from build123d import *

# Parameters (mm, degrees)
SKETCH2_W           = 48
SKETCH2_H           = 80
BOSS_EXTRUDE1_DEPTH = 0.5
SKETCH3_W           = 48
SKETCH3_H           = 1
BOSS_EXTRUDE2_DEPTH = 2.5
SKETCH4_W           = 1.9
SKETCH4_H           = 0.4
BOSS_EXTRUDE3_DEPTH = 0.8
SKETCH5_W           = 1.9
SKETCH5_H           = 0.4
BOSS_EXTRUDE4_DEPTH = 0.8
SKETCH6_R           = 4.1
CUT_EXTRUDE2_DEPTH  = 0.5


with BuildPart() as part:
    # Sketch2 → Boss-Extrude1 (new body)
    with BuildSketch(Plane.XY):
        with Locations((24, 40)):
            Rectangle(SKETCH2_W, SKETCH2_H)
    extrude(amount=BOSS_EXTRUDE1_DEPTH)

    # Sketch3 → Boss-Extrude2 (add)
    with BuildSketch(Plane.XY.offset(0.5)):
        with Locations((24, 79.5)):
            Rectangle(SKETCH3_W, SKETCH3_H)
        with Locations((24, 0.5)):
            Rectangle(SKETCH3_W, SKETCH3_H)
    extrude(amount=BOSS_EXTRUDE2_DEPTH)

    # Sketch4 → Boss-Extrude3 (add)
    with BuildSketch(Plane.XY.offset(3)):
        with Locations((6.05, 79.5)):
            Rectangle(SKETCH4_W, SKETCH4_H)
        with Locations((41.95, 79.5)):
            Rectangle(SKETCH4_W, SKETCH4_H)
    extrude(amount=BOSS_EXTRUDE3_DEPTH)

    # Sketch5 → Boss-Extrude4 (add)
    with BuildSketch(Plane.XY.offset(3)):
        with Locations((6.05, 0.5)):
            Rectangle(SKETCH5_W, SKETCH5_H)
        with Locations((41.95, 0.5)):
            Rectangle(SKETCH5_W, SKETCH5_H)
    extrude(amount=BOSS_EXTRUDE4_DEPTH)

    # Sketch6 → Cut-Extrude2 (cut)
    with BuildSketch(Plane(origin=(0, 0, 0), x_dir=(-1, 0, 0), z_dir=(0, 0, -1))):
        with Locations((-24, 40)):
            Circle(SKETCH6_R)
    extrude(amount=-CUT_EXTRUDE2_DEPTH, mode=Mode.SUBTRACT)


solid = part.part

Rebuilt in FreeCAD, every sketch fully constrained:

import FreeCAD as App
import Part
import Sketcher
from FreeCAD import Vector
Q = App.Units.Quantity

doc = App.newDocument("Part")
params = doc.addObject("Spreadsheet::Sheet", "Params")
for row, (alias, value) in enumerate([
    ("sketch1_width", "48 mm"),
    ("sketch1_height", "80 mm"),
    ("pad1_length", "0.5 mm"),
    ("sketch2_width", "48 mm"),
    ("sketch2_height", "1 mm"),
    ("pad2_length", "2.5 mm"),
    ("sketch3_width", "1.9 mm"),
    ("sketch3_height", "0.4 mm"),
    ("pad3_length", "0.8 mm"),
    ("sketch4_width", "1.9 mm"),
    ("sketch4_height", "0.4 mm"),
    ("pad4_length", "0.8 mm"),
    ("sketch5_diameter", "8.2 mm"),
    ("pocket1_length", "0.5 mm"),
], start=1):
    params.set(f"A{row}", alias)
    params.set(f"B{row}", "=" + value)
    params.setAlias(f"B{row}", alias)

body = doc.addObject("PartDesign::Body", "Body")

sketch1 = doc.addObject("Sketcher::SketchObject", "Sketch")
body.addObject(sketch1)
sketch1.AttachmentSupport = (doc.XY_Plane, [""])
sketch1.MapMode = "FlatFace"
sketch1.addGeometry([
    Part.LineSegment(Vector(0, 80, 0), Vector(0, 0, 0)),
    Part.LineSegment(Vector(0, 0, 0), Vector(48, 0, 0)),
    Part.LineSegment(Vector(48, 0, 0), Vector(48, 80, 0)),
    Part.LineSegment(Vector(48, 80, 0), Vector(0, 80, 0)),
], False)
sketch1.addConstraint([
    Sketcher.Constraint("Coincident", 0, 2, 1, 1),
    Sketcher.Constraint("Coincident", 1, 2, 2, 1),
    Sketcher.Constraint("Coincident", 2, 2, 3, 1),
    Sketcher.Constraint("Coincident", 3, 2, 0, 1),
    Sketcher.Constraint("Vertical", 0),
    Sketcher.Constraint("Horizontal", 1),
    Sketcher.Constraint("Vertical", 2),
    Sketcher.Constraint("Horizontal", 3),
    Sketcher.Constraint("Coincident", 0, 2, -1, 1),
    Sketcher.Constraint("DistanceX", 1, 1, 1, 2, Q("48 mm")),
    Sketcher.Constraint("DistanceY", 0, 2, 0, 1, Q("80 mm")),
])
sketch1.setExpression("Constraints[9]", "Params.sketch1_width")
sketch1.setExpression("Constraints[10]", "Params.sketch1_height")
pad1 = doc.addObject("PartDesign::Pad", "Pad")
body.addObject(pad1)
pad1.Profile = sketch1
pad1.setExpression("Length", "Params.pad1_length")

sketch2 = doc.addObject("Sketcher::SketchObject", "Sketch001")
body.addObject(sketch2)
sketch2.AttachmentSupport = (doc.XY_Plane, [""])
sketch2.MapMode = "FlatFace"
sketch2.AttachmentOffset = App.Placement(Vector(0, 0, 0.5), App.Rotation())
sketch2.addGeometry([
    Part.LineSegment(Vector(0, 80, 0), Vector(0, 79, 0)),
    Part.LineSegment(Vector(0, 79, 0), Vector(48, 79, 0)),
    Part.LineSegment(Vector(48, 79, 0), Vector(48, 80, 0)),
    Part.LineSegment(Vector(48, 80, 0), Vector(0, 80, 0)),
    Part.LineSegment(Vector(0, 1, 0), Vector(0, 0, 0)),
    Part.LineSegment(Vector(0, 0, 0), Vector(48, 0, 0)),
    Part.LineSegment(Vector(48, 0, 0), Vector(48, 1, 0)),
    Part.LineSegment(Vector(48, 1, 0), Vector(0, 1, 0)),
], False)
sketch2.addConstraint([
    Sketcher.Constraint("Coincident", 0, 2, 1, 1),
    Sketcher.Constraint("Coincident", 1, 2, 2, 1),
    Sketcher.Constraint("Coincident", 2, 2, 3, 1),
    Sketcher.Constraint("Coincident", 3, 2, 0, 1),
    Sketcher.Constraint("Coincident", 4, 2, 5, 1),
    Sketcher.Constraint("Coincident", 5, 2, 6, 1),
    Sketcher.Constraint("Coincident", 6, 2, 7, 1),
    Sketcher.Constraint("Coincident", 7, 2, 4, 1),
    Sketcher.Constraint("Vertical", 0),
    Sketcher.Constraint("Horizontal", 1),
    Sketcher.Constraint("Vertical", 2),
    Sketcher.Constraint("Horizontal", 3),
    Sketcher.Constraint("Vertical", 4),
    Sketcher.Constraint("Horizontal", 5),
    Sketcher.Constraint("Vertical", 6),
    Sketcher.Constraint("Horizontal", 7),
    Sketcher.Constraint("Coincident", 4, 2, -1, 1),
    Sketcher.Constraint("PointOnObject", 0, 2, -2),
    Sketcher.Constraint("Vertical", 2, 2, 5, 2),
    Sketcher.Constraint("Equal", 2, 4),
    Sketcher.Constraint("DistanceX", 1, 1, 1, 2, Q("48 mm")),
    Sketcher.Constraint("DistanceY", 0, 2, 0, 1, Q("1 mm")),
    Sketcher.Constraint("DistanceY", -1, 1, 0, 2, Q("79 mm")),
])
sketch2.setExpression("Constraints[20]", "Params.sketch2_width")
sketch2.setExpression("Constraints[21]", "Params.sketch2_height")
pad2 = doc.addObject("PartDesign::Pad", "Pad001")
body.addObject(pad2)
pad2.Profile = sketch2
pad2.setExpression("Length", "Params.pad2_length")

sketch3 = doc.addObject("Sketcher::SketchObject", "Sketch002")
body.addObject(sketch3)
sketch3.AttachmentSupport = (doc.XY_Plane, [""])
sketch3.MapMode = "FlatFace"
sketch3.AttachmentOffset = App.Placement(Vector(0, 0, 3), App.Rotation())
sketch3.addGeometry([
    Part.LineSegment(Vector(5.1, 79.7, 0), Vector(5.1, 79.3, 0)),
    Part.LineSegment(Vector(5.1, 79.3, 0), Vector(7, 79.3, 0)),
    Part.LineSegment(Vector(7, 79.3, 0), Vector(7, 79.7, 0)),
    Part.LineSegment(Vector(7, 79.7, 0), Vector(5.1, 79.7, 0)),
    Part.LineSegment(Vector(41, 79.7, 0), Vector(41, 79.3, 0)),
    Part.LineSegment(Vector(41, 79.3, 0), Vector(42.9, 79.3, 0)),
    Part.LineSegment(Vector(42.9, 79.3, 0), Vector(42.9, 79.7, 0)),
    Part.LineSegment(Vector(42.9, 79.7, 0), Vector(41, 79.7, 0)),
], False)
sketch3.addConstraint([
    Sketcher.Constraint("Coincident", 0, 2, 1, 1),
    Sketcher.Constraint("Coincident", 1, 2, 2, 1),
    Sketcher.Constraint("Coincident", 2, 2, 3, 1),
    Sketcher.Constraint("Coincident", 3, 2, 0, 1),
    Sketcher.Constraint("Coincident", 4, 2, 5, 1),
    Sketcher.Constraint("Coincident", 5, 2, 6, 1),
    Sketcher.Constraint("Coincident", 6, 2, 7, 1),
    Sketcher.Constraint("Coincident", 7, 2, 4, 1),
    Sketcher.Constraint("Vertical", 0),
    Sketcher.Constraint("Horizontal", 1),
    Sketcher.Constraint("Vertical", 2),
    Sketcher.Constraint("Horizontal", 3),
    Sketcher.Constraint("Vertical", 4),
    Sketcher.Constraint("Horizontal", 5),
    Sketcher.Constraint("Vertical", 6),
    Sketcher.Constraint("Horizontal", 7),
    Sketcher.Constraint("Horizontal", 1, 2, 4, 2),
    Sketcher.Constraint("Horizontal", 3, 2, 6, 2),
    Sketcher.Constraint("Equal", 3, 5),
    Sketcher.Constraint("DistanceX", 1, 1, 1, 2, Q("1.9 mm")),
    Sketcher.Constraint("DistanceY", 0, 2, 0, 1, Q("0.4 mm")),
    Sketcher.Constraint("DistanceX", -1, 1, 1, 2, Q("7 mm")),
    Sketcher.Constraint("DistanceX", -1, 1, 4, 2, Q("41 mm")),
    Sketcher.Constraint("DistanceY", -1, 1, 0, 2, Q("79.3 mm")),
])
sketch3.setExpression("Constraints[19]", "Params.sketch3_width")
sketch3.setExpression("Constraints[20]", "Params.sketch3_height")
pad3 = doc.addObject("PartDesign::Pad", "Pad002")
body.addObject(pad3)
pad3.Profile = sketch3
pad3.setExpression("Length", "Params.pad3_length")

sketch4 = doc.addObject("Sketcher::SketchObject", "Sketch003")
body.addObject(sketch4)
sketch4.AttachmentSupport = (doc.XY_Plane, [""])
sketch4.MapMode = "FlatFace"
sketch4.AttachmentOffset = App.Placement(Vector(0, 0, 3), App.Rotation())
sketch4.addGeometry([
    Part.LineSegment(Vector(5.1, 0.7, 0), Vector(5.1, 0.3, 0)),
    Part.LineSegment(Vector(5.1, 0.3, 0), Vector(7, 0.3, 0)),
    Part.LineSegment(Vector(7, 0.3, 0), Vector(7, 0.7, 0)),
    Part.LineSegment(Vector(7, 0.7, 0), Vector(5.1, 0.7, 0)),
    Part.LineSegment(Vector(41, 0.7, 0), Vector(41, 0.3, 0)),
    Part.LineSegment(Vector(41, 0.3, 0), Vector(42.9, 0.3, 0)),
    Part.LineSegment(Vector(42.9, 0.3, 0), Vector(42.9, 0.7, 0)),
    Part.LineSegment(Vector(42.9, 0.7, 0), Vector(41, 0.7, 0)),
], False)
sketch4.addConstraint([
    Sketcher.Constraint("Coincident", 0, 2, 1, 1),
    Sketcher.Constraint("Coincident", 1, 2, 2, 1),
    Sketcher.Constraint("Coincident", 2, 2, 3, 1),
    Sketcher.Constraint("Coincident", 3, 2, 0, 1),
    Sketcher.Constraint("Coincident", 4, 2, 5, 1),
    Sketcher.Constraint("Coincident", 5, 2, 6, 1),
    Sketcher.Constraint("Coincident", 6, 2, 7, 1),
    Sketcher.Constraint("Coincident", 7, 2, 4, 1),
    Sketcher.Constraint("Vertical", 0),
    Sketcher.Constraint("Horizontal", 1),
    Sketcher.Constraint("Vertical", 2),
    Sketcher.Constraint("Horizontal", 3),
    Sketcher.Constraint("Vertical", 4),
    Sketcher.Constraint("Horizontal", 5),
    Sketcher.Constraint("Vertical", 6),
    Sketcher.Constraint("Horizontal", 7),
    Sketcher.Constraint("Horizontal", 1, 2, 4, 2),
    Sketcher.Constraint("Horizontal", 3, 2, 6, 2),
    Sketcher.Constraint("Equal", 3, 5),
    Sketcher.Constraint("DistanceX", 1, 1, 1, 2, Q("1.9 mm")),
    Sketcher.Constraint("DistanceY", 0, 2, 0, 1, Q("0.4 mm")),
    Sketcher.Constraint("DistanceX", -1, 1, 1, 2, Q("7 mm")),
    Sketcher.Constraint("DistanceX", -1, 1, 4, 2, Q("41 mm")),
    Sketcher.Constraint("DistanceY", -1, 1, 0, 2, Q("0.3 mm")),
])
sketch4.setExpression("Constraints[19]", "Params.sketch4_width")
sketch4.setExpression("Constraints[20]", "Params.sketch4_height")
pad4 = doc.addObject("PartDesign::Pad", "Pad003")
body.addObject(pad4)
pad4.Profile = sketch4
pad4.setExpression("Length", "Params.pad4_length")

sketch5 = doc.addObject("Sketcher::SketchObject", "Sketch004")
body.addObject(sketch5)
sketch5.AttachmentSupport = (doc.XY_Plane, [""])
sketch5.MapMode = "FlatFace"
sketch5.addGeometry(Part.Circle(Vector(24, 40, 0), Vector(0, 0, 1), 4.1), False)
sketch5.addConstraint([
    Sketcher.Constraint("Diameter", 0, Q("8.2 mm")),
    Sketcher.Constraint("DistanceX", -1, 1, 0, 3, Q("24 mm")),
    Sketcher.Constraint("DistanceY", -1, 1, 0, 3, Q("40 mm")),
])
sketch5.setExpression("Constraints[0]", "Params.sketch5_diameter")
pocket1 = doc.addObject("PartDesign::Pocket", "Pocket")
body.addObject(pocket1)
pocket1.Profile = sketch5
pocket1.setExpression("Length", "Params.pocket1_length")
pocket1.Reversed = True

doc.recompute()
